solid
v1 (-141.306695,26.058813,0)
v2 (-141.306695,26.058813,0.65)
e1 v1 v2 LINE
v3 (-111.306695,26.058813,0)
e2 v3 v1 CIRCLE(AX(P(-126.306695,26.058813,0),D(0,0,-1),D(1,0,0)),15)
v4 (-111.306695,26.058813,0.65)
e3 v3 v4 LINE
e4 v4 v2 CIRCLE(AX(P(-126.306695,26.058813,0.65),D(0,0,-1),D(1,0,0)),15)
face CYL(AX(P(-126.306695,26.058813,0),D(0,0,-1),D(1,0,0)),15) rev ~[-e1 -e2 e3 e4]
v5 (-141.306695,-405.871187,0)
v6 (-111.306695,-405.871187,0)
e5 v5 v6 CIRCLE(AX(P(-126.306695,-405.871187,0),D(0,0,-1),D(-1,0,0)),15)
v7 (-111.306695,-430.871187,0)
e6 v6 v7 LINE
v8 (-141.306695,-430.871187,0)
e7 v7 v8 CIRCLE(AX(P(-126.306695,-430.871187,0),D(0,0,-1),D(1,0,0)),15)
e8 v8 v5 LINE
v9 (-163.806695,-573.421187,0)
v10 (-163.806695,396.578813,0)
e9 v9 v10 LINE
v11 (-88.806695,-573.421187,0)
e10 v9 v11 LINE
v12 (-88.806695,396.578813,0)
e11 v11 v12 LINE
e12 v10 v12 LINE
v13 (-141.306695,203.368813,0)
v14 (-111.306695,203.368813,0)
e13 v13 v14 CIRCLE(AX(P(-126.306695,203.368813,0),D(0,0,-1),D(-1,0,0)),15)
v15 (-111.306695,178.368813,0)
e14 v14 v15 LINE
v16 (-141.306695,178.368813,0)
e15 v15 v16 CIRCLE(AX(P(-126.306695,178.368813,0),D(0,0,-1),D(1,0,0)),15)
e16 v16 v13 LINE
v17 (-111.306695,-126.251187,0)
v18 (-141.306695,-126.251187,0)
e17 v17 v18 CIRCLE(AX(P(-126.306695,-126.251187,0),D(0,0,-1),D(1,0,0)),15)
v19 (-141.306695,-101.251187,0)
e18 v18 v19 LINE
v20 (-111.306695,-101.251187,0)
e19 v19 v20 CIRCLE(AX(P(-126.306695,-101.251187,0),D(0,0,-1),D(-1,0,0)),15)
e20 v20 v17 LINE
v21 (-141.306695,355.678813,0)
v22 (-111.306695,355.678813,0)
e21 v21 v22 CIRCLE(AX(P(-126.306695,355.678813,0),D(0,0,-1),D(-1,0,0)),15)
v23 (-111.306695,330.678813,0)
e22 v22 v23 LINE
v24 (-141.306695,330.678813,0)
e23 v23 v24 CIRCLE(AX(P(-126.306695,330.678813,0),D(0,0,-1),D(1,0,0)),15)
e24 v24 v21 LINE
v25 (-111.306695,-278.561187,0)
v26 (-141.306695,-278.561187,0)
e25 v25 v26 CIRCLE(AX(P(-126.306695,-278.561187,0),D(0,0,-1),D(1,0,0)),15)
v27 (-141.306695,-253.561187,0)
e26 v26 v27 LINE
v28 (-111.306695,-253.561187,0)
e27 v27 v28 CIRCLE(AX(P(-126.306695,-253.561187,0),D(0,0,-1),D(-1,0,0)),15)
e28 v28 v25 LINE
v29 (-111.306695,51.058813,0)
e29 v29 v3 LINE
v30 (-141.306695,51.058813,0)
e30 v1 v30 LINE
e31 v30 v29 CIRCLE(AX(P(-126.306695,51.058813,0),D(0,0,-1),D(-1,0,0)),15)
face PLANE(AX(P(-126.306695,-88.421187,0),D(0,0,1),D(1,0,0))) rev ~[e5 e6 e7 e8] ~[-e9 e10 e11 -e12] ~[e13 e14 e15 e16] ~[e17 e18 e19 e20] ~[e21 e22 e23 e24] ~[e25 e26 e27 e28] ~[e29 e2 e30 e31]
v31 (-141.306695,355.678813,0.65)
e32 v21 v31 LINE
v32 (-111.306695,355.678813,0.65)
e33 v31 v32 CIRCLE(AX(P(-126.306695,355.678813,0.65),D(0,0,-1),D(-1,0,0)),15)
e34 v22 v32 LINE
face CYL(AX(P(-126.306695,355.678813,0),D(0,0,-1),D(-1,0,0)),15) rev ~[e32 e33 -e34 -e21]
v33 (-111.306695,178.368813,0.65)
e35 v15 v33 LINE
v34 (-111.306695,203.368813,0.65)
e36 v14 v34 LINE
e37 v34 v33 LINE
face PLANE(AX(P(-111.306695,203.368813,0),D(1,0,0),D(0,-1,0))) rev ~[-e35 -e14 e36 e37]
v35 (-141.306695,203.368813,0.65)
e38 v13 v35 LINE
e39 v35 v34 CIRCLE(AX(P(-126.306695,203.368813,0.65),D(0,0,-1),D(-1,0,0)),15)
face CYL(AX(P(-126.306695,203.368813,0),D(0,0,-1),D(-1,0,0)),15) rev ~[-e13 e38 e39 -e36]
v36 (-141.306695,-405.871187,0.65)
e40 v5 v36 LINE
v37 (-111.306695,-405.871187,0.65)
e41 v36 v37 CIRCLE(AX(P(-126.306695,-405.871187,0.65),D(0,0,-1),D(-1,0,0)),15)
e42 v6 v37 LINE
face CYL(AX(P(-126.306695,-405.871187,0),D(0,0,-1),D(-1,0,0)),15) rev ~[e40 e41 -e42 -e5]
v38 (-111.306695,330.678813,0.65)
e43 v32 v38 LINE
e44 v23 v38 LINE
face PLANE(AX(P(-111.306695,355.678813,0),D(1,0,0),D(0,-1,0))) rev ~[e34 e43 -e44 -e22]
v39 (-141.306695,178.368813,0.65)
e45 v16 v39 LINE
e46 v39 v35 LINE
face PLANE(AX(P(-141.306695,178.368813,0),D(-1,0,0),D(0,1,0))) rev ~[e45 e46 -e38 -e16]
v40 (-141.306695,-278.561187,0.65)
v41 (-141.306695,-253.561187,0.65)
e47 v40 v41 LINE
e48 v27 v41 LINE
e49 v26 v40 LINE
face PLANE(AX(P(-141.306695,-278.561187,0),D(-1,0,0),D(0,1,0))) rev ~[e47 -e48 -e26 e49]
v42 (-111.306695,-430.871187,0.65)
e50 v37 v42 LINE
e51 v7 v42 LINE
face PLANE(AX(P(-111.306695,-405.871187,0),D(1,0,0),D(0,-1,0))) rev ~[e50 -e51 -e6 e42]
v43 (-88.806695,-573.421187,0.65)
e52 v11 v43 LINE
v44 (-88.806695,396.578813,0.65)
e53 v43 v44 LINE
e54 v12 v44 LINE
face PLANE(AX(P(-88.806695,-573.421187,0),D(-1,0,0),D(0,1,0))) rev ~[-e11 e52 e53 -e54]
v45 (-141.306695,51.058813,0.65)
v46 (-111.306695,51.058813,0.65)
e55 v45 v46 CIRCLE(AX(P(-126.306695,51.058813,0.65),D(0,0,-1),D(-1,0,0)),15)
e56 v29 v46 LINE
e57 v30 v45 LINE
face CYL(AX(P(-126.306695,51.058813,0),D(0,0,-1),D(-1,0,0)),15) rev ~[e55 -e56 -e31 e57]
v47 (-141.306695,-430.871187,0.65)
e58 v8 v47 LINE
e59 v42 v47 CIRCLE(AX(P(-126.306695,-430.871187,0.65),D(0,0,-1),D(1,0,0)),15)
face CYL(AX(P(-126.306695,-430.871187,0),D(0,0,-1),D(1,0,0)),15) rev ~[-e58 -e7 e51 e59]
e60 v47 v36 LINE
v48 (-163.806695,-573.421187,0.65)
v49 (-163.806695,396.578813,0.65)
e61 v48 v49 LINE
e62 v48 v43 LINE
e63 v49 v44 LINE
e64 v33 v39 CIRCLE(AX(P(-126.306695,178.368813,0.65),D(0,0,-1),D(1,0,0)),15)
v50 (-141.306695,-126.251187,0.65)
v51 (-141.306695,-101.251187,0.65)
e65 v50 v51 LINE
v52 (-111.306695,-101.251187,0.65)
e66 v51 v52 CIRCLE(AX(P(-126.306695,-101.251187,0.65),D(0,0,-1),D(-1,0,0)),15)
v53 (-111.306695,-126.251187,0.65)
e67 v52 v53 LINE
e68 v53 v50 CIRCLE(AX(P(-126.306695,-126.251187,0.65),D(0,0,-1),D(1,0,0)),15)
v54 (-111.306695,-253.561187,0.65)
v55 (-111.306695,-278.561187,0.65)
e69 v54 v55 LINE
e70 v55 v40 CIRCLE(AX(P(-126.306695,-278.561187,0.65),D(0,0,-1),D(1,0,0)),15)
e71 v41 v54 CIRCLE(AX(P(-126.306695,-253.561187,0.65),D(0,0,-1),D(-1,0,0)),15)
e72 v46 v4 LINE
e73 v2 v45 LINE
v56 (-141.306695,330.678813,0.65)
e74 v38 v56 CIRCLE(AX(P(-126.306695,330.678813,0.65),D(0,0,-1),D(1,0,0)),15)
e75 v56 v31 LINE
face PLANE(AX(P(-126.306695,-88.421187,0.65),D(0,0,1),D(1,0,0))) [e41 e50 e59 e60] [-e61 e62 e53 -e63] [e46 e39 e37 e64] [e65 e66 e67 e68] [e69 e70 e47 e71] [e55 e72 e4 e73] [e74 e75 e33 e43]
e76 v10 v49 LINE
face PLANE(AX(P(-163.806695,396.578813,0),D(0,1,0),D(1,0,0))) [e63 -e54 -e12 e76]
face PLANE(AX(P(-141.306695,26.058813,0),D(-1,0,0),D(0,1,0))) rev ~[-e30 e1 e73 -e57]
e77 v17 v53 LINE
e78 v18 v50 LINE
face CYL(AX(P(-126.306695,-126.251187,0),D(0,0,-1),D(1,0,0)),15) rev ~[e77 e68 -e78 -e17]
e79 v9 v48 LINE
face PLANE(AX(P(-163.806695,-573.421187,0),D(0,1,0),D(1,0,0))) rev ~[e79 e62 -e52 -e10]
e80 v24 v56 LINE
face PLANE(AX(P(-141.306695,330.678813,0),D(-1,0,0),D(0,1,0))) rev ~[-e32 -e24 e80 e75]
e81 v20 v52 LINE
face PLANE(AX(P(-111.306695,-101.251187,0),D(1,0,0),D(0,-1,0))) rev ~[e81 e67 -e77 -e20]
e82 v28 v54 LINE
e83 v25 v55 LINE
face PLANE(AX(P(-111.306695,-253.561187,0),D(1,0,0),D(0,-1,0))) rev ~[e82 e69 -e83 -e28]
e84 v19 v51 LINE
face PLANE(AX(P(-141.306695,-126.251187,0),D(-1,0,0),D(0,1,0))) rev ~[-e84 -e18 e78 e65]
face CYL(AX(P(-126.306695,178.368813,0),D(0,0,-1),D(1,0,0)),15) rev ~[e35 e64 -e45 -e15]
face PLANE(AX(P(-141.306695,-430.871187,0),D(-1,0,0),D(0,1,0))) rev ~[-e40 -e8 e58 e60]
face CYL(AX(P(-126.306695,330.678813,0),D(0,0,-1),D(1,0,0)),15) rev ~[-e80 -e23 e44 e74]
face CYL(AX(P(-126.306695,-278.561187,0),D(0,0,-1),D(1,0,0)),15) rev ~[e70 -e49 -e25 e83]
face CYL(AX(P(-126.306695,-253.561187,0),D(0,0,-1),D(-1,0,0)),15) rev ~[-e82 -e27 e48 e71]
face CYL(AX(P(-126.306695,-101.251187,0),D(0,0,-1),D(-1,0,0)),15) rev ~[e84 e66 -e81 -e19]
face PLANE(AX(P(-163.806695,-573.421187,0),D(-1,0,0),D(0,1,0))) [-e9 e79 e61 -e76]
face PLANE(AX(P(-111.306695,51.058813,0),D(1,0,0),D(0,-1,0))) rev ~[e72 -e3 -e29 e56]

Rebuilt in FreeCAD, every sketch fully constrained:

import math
import FreeCAD as App
import Part
import Sketcher
from FreeCAD import Vector


def add_polygon(sketch, points):
    """Adds a closed chain of lines whose ends are joined by coincident constraints."""
    first, n = sketch.GeometryCount, len(points)
    for a, b in zip(points, points[1:] + points[:1]):
        sketch.addGeometry(Part.LineSegment(App.Vector(*a, 0), App.Vector(*b, 0)), False)
    for i in range(n):
        sketch.addConstraint(Sketcher.Constraint("Coincident", first + i, 2, first + (i + 1) % n, 1))

doc = App.newDocument("Part")
params = doc.addObject("Spreadsheet::Sheet", "Params")
for row, (alias, value) in enumerate([
    ("sketch1_radius", "15 mm"),
    ("sketch1_width", "75 mm"),
    ("sketch1_height", "970 mm"),
    ("sketch1_height2", "25 mm"),
    ("pad1_length", "0.65 mm"),
], start=1):
    params.set(f"A{row}", alias)
    params.set(f"B{row}", "=" + value)
    params.setAlias(f"B{row}", alias)

body = doc.addObject("PartDesign::Body", "Body")

# Sketch on XY plane
sketch1 = doc.addObject("Sketcher::SketchObject", "Sketch")
body.addObject(sketch1)
sketch1.AttachmentSupport = (doc.XY_Plane, [""])
sketch1.MapMode = "FlatFace"
add_polygon(sketch1, [(-164, 397), (-164, -573), (-89, -573), (-89, 397)])  # lines 0-3
sketch1.addGeometry(Part.LineSegment(Vector(-111, -406, 0), Vector(-111, -431, 0)), False)  # 4
sketch1.addGeometry(Part.ArcOfCircle(Part.Circle(Vector(-126, -431, 0), Vector(0, 0, 1), 15), math.radians(180), math.radians(360)), False)  # 5
sketch1.addGeometry(Part.LineSegment(Vector(-141, -431, 0), Vector(-141, -406, 0)), False)  # 6
sketch1.addGeometry(Part.ArcOfCircle(Part.Circle(Vector(-126, -406, 0), Vector(0, 0, 1), 15), math.radians(0), math.radians(180)), False)  # 7
sketch1.addGeometry(Part.LineSegment(Vector(-111, -254, 0), Vector(-111, -279, 0)), False)  # 8
sketch1.addGeometry(Part.ArcOfCircle(Part.Circle(Vector(-126, -279, 0), Vector(0, 0, 1), 15), math.radians(180), math.radians(360)), False)  # 9
sketch1.addGeometry(Part.LineSegment(Vector(-141, -279, 0), Vector(-141, -254, 0)), False)  # 10
sketch1.addGeometry(Part.ArcOfCircle(Part.Circle(Vector(-126, -254, 0), Vector(0, 0, 1), 15), math.radians(0), math.radians(180)), False)  # 11
sketch1.addGeometry(Part.LineSegment(Vector(-111, -101, 0), Vector(-111, -126, 0)), False)  # 12
sketch1.addGeometry(Part.ArcOfCircle(Part.Circle(Vector(-126, -126, 0), Vector(0, 0, 1), 15), math.radians(180), math.radians(360)), False)  # 13
sketch1.addGeometry(Part.LineSegment(Vector(-141, -126, 0), Vector(-141, -101, 0)), False)  # 14
sketch1.addGeometry(Part.ArcOfCircle(Part.Circle(Vector(-126, -101, 0), Vector(0, 0, 1), 15), math.radians(0), math.radians(180)), False)  # 15
sketch1.addGeometry(Part.LineSegment(Vector(-111, 51, 0), Vector(-111, 26, 0)), False)  # 16
sketch1.addGeometry(Part.ArcOfCircle(Part.Circle(Vector(-126, 26, 0), Vector(0, 0, 1), 15), math.radians(180), math.radians(360)), False)  # 17
sketch1.addGeometry(Part.LineSegment(Vector(-141, 26, 0), Vector(-141, 51, 0)), False)  # 18
sketch1.addGeometry(Part.ArcOfCircle(Part.Circle(Vector(-126, 51, 0), Vector(0, 0, 1), 15), math.radians(0), math.radians(180)), False)  # 19
sketch1.addGeometry(Part.LineSegment(Vector(-111, 203, 0), Vector(-111, 178, 0)), False)  # 20
sketch1.addGeometry(Part.ArcOfCircle(Part.Circle(Vector(-126, 178, 0), Vector(0, 0, 1), 15), math.radians(180), math.radians(360)), False)  # 21
sketch1.addGeometry(Part.LineSegment(Vector(-141, 178, 0), Vector(-141, 203, 0)), False)  # 22
sketch1.addGeometry(Part.ArcOfCircle(Part.Circle(Vector(-126, 203, 0), Vector(0, 0, 1), 15), math.radians(0), math.radians(180)), False)  # 23
sketch1.addGeometry(Part.LineSegment(Vector(-111, 356, 0), Vector(-111, 331, 0)), False)  # 24
sketch1.addGeometry(Part.ArcOfCircle(Part.Circle(Vector(-126, 331, 0), Vector(0, 0, 1), 15), math.radians(180), math.radians(360)), False)  # 25
sketch1.addGeometry(Part.LineSegment(Vector(-141, 331, 0), Vector(-141, 356, 0)), False)  # 26
sketch1.addGeometry(Part.ArcOfCircle(Part.Circle(Vector(-126, 356, 0), Vector(0, 0, 1), 15), math.radians(0), math.radians(180)), False)  # 27
sketch1.addConstraint(Sketcher.Constraint("Tangent", 4, 2, 5, 2))
sketch1.addConstraint(Sketcher.Constraint("Tangent", 5, 1, 6, 1))
sketch1.addConstraint(Sketcher.Constraint("Tangent", 6, 2, 7, 2))
sketch1.addConstraint(Sketcher.Constraint("Tangent", 7, 1, 4, 1))
sketch1.addConstraint(Sketcher.Constraint("Tangent", 8, 2, 9, 2))
sketch1.addConstraint(Sketcher.Constraint("Tangent", 9, 1, 10, 1))
sketch1.addConstraint(Sketcher.Constraint("Tangent", 10, 2, 11, 2))
sketch1.addConstraint(Sketcher.Constraint("Tangent", 11, 1, 8, 1))
sketch1.addConstraint(Sketcher.Constraint("Tangent", 12, 2, 13, 2))
sketch1.addConstraint(Sketcher.Constraint("Tangent", 13, 1, 14, 1))
sketch1.addConstraint(Sketcher.Constraint("Tangent", 14, 2, 15, 2))
sketch1.addConstraint(Sketcher.Constraint("Tangent", 15, 1, 12, 1))
sketch1.addConstraint(Sketcher.Constraint("Tangent", 16, 2, 17, 2))
sketch1.addConstraint(Sketcher.Constraint("Tangent", 17, 1, 18, 1))
sketch1.addConstraint(Sketcher.Constraint("Tangent", 18, 2, 19, 2))
sketch1.addConstraint(Sketcher.Constraint("Tangent", 19, 1, 16, 1))
sketch1.addConstraint(Sketcher.Constraint("Tangent", 20, 2, 21, 2))
sketch1.addConstraint(Sketcher.Constraint("Tangent", 21, 1, 22, 1))
sketch1.addConstraint(Sketcher.Constraint("Tangent", 22, 2, 23, 2))
sketch1.addConstraint(Sketcher.Constraint("Tangent", 23, 1, 20, 1))
sketch1.addConstraint(Sketcher.Constraint("Tangent", 24, 2, 25, 2))
sketch1.addConstraint(Sketcher.Constraint("Tangent", 25, 1, 26, 1))
sketch1.addConstraint(Sketcher.Constraint("Tangent", 26, 2, 27, 2))
sketch1.addConstraint(Sketcher.Constraint("Tangent", 27, 1, 24, 1))
sketch1.addConstraint(Sketcher.Constraint("Vertical", 0))
sketch1.addConstraint(Sketcher.Constraint("Horizontal", 1))
sketch1.addConstraint(Sketcher.Constraint("Vertical", 2))
sketch1.addConstraint(Sketcher.Constraint("Horizontal", 3))
sketch1.addConstraint(Sketcher.Constraint("Vertical", 4))
sketch1.addConstraint(Sketcher.Constraint("Vertical", 6))
sketch1.addConstraint(Sketcher.Constraint("Vertical", 8))
sketch1.addConstraint(Sketcher.Constraint("Vertical", 10))
sketch1.addConstraint(Sketcher.Constraint("Vertical", 12))
sketch1.addConstraint(Sketcher.Constraint("Vertical", 14))
sketch1.addConstraint(Sketcher.Constraint("Vertical", 16))
sketch1.addConstraint(Sketcher.Constraint("Vertical", 18))
sketch1.addConstraint(Sketcher.Constraint("Vertical", 20))
sketch1.addConstraint(Sketcher.Constraint("Vertical", 22))
sketch1.addConstraint(Sketcher.Constraint("Vertical", 24))
sketch1.addConstraint(Sketcher.Constraint("Vertical", 26))
sketch1.addConstraint(Sketcher.Constraint("Equal", 7, 9))
sketch1.addConstraint(Sketcher.Constraint("Equal", 11, 13))
sketch1.addConstraint(Sketcher.Constraint("Equal", 15, 17))
sketch1.addConstraint(Sketcher.Constraint("Equal", 19, 21))
sketch1.addConstraint(Sketcher.Constraint("Equal", 23, 25))
sketch1.addConstraint(Sketcher.Constraint("Vertical", 7, 3, 9, 3))
sketch1.addConstraint(Sketcher.Constraint("Vertical", 11, 3, 13, 3))
sketch1.addConstraint(Sketcher.Constraint("Vertical", 15, 3, 17, 3))
sketch1.addConstraint(Sketcher.Constraint("Vertical", 19, 3, 21, 3))
sketch1.addConstraint(Sketcher.Constraint("Vertical", 23, 3, 25, 3))
sketch1.addConstraint(Sketcher.Constraint("Equal", 6, 8))
sketch1.addConstraint(Sketcher.Constraint("Equal", 10, 12))
sketch1.addConstraint(Sketcher.Constraint("Equal", 14, 16))
sketch1.addConstraint(Sketcher.Constraint("Equal", 18, 20))
sketch1.addConstraint(Sketcher.Constraint("Equal", 22, 24))
sketch1.addConstraint(Sketcher.Constraint("Radius", 5, 15.0))
sketch1.addConstraint(Sketcher.Constraint("DistanceX", 1, 1, 1, 2, 75.0))
sketch1.addConstraint(Sketcher.Constraint("DistanceY", 0, 2, 0, 1, 970.0))
sketch1.addConstraint(Sketcher.Constraint("DistanceY", 4, 2, 4, 1, 25.0))
sketch1.addConstraint(Sketcher.Constraint("DistanceX", 0, 2, 5, 3, 37.5))
sketch1.addConstraint(Sketcher.Constraint("DistanceY", 27, 3, 2, 2, 40.9))
sketch1.addConstraint(Sketcher.Constraint("DistanceY", 7, 3, 9, 3, 127.31))
sketch1.addConstraint(Sketcher.Constraint("DistanceY", 11, 3, 13, 3, 127.31))
sketch1.addConstraint(Sketcher.Constraint("DistanceY", 15, 3, 17, 3, 127.31))
sketch1.addConstraint(Sketcher.Constraint("DistanceY", 19, 3, 21, 3, 127.31))
sketch1.addConstraint(Sketcher.Constraint("DistanceY", 23, 3, 25, 3, 127.31))
sketch1.addConstraint(Sketcher.Constraint("DistanceX", 5, 3, -1, 1, 126.306695))
sketch1.addConstraint(Sketcher.Constraint("DistanceY", 5, 3, -1, 1, 430.871187))
sketch1.setExpression("Constraints[59]", "Params.sketch1_radius")
sketch1.setExpression("Constraints[60]", "Params.sketch1_width")
sketch1.setExpression("Constraints[61]", "Params.sketch1_height")
sketch1.setExpression("Constraints[62]", "Params.sketch1_height2")
pad1 = doc.addObject("PartDesign::Pad", "Pad")
body.addObject(pad1)
pad1.Profile = sketch1
pad1.setExpression("Length", "Params.pad1_length")

doc.recompute()
